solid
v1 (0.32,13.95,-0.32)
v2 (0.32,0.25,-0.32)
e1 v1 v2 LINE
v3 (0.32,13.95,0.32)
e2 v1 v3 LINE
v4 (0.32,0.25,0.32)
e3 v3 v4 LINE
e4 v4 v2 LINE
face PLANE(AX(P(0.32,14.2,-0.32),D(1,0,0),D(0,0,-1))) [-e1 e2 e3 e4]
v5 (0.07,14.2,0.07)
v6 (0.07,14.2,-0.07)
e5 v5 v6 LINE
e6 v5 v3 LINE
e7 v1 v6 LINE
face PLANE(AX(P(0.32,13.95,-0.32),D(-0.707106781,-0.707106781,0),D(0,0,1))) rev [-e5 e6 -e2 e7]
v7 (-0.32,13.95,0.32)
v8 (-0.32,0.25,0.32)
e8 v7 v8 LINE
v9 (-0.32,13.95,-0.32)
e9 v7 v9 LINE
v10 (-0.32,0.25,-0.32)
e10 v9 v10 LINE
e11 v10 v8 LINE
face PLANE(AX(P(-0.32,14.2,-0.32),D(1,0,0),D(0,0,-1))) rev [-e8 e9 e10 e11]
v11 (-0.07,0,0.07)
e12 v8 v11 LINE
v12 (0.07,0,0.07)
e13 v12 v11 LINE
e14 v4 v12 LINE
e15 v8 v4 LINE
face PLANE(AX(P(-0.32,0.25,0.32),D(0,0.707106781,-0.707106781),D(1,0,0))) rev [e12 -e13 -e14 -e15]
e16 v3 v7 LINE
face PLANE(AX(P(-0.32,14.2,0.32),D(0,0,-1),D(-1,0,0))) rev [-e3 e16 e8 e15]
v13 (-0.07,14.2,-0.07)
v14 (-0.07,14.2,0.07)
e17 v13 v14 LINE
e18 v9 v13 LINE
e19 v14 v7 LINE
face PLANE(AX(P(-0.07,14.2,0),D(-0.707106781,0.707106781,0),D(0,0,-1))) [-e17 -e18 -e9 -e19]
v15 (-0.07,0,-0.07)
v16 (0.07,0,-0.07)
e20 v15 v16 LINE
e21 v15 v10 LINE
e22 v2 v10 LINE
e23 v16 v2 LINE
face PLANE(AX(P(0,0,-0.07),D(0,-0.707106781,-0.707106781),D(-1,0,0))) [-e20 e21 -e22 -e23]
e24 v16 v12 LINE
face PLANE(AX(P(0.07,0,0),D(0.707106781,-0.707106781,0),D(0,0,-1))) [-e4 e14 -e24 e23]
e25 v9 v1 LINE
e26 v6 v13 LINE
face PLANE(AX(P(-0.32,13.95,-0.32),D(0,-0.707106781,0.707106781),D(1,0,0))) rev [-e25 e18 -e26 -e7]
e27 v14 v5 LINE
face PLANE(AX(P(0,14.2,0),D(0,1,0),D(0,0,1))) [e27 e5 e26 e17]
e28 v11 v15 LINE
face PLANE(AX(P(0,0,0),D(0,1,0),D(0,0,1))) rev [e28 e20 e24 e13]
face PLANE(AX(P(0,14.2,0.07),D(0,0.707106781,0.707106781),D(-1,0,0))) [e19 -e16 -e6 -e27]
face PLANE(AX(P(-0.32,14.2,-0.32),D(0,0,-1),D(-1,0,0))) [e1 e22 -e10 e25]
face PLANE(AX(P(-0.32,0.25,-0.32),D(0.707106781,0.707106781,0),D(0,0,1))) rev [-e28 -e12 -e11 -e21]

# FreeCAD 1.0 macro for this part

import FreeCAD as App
import Part
import Sketcher

V = App.Vector
Q = App.Units.Quantity


def edges_at(feature, points):
    """Names of the edges that pass closest to the given points."""
    edges = feature.Shape.Edges
    near = lambda p: min(range(len(edges)), key=lambda i: edges[i].distToShape(Part.Vertex(*p))[0])
    return sorted({f"Edge{near(p) + 1}" for p in points})

doc = App.newDocument("Part")
params = doc.addObject("Spreadsheet::Sheet", "Params")
for row, (alias, value) in enumerate([
    ("sketch1_width", "0.64 mm"),
    ("pad1_length", "14.2 mm"),
    ("chamfer_size", "0.25 mm"),
    ("chamfer2_size", "0.25 mm"),
], start=1):
    params.set(f"A{row}", alias)
    params.set(f"B{row}", "=" + value)
    params.setAlias(f"B{row}", alias)

body = doc.addObject("PartDesign::Body", "Body")

# Sketch on XZ plane
sketch1 = body.newObject("Sketcher::SketchObject", "Sketch")
sketch1.AttachmentSupport = (doc.getObject("XZ_Plane"), [""])
sketch1.MapMode = "FlatFace"
sketch1.addGeometry(Part.LineSegment(V(-0.3, -0.3, 0), V(-0.3, 0.3, 0)), False)
sketch1.addGeometry(Part.LineSegment(V(-0.3, 0.3, 0), V(0.3, 0.3, 0)), False)
sketch1.addGeometry(Part.LineSegment(V(0.3, 0.3, 0), V(0.3, -0.3, 0)), False)
sketch1.addGeometry(Part.LineSegment(V(0.3, -0.3, 0), V(-0.3, -0.3, 0)), False)
sketch1.addConstraint(Sketcher.Constraint("Coincident", 0, 2, 1, 1))
sketch1.addConstraint(Sketcher.Constraint("Coincident", 1, 2, 2, 1))
sketch1.addConstraint(Sketcher.Constraint("Coincident", 2, 2, 3, 1))
sketch1.addConstraint(Sketcher.Constraint("Coincident", 3, 2, 0, 1))
sketch1.addConstraint(Sketcher.Constraint("Vertical", 0))
sketch1.addConstraint(Sketcher.Constraint("Horizontal", 1))
sketch1.addConstraint(Sketcher.Constraint("Vertical", 2))
sketch1.addConstraint(Sketcher.Constraint("Horizontal", 3))
sketch1.addConstraint(Sketcher.Constraint("Symmetric", 0, 2, 2, 2, -1, 1))
sketch1.addConstraint(Sketcher.Constraint("Equal", 3, 0))
sketch1.addConstraint(Sketcher.Constraint("DistanceX", 1, 1, 1, 2, Q("0.64 mm")))
sketch1.setExpression("Constraints[10]", "Params.sketch1_width")
pad1 = body.newObject("PartDesign::Pad", "Pad")
pad1.Profile = sketch1
pad1.setExpression("Length", "Params.pad1_length")
pad1.Reversed = True
doc.recompute()

chamfer = body.newObject("PartDesign::Chamfer", "Chamfer")
chamfer.Base = (pad1, edges_at(pad1, [
    (0.32, 14.2, 0),
    (0, 14.2, -0.32),
    (-0.32, 14.2, 0),
    (0, 14.2, 0.32),
]))
chamfer.setExpression("Size", "Params.chamfer_size")
doc.recompute()

chamfer2 = body.newObject("PartDesign::Chamfer", "Chamfer001")
chamfer2.Base = (chamfer, edges_at(chamfer, [
    (0, 0, -0.32),
    (0.32, 0, 0),
    (0, 0, 0.32),
    (-0.32, 0, 0),
]))
chamfer2.setExpression("Size", "Params.chamfer2_size")

doc.recompute()
